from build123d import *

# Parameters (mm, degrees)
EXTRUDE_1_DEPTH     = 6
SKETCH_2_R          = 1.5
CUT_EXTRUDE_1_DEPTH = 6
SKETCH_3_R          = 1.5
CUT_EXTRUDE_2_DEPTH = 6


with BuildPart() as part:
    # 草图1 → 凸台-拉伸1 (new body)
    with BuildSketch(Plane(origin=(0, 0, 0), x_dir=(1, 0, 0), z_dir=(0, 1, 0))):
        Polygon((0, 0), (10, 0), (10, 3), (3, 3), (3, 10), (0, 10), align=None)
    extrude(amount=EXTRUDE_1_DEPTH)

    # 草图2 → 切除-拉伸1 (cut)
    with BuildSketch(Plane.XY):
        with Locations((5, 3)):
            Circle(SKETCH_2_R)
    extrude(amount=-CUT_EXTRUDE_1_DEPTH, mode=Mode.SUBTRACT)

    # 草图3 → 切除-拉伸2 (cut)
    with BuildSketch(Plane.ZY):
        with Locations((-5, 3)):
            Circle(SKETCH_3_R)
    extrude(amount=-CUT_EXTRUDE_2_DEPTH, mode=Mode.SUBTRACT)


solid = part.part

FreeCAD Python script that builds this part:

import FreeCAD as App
import Part
import Sketcher
from FreeCAD import Vector


def add_polygon(sketch, points):
    """Adds a closed chain of lines whose ends are joined by coincident constraints."""
    first, n = sketch.GeometryCount, len(points)
    for a, b in zip(points, points[1:] + points[:1]):
        sketch.addGeometry(Part.LineSegment(App.Vector(*a, 0), App.Vector(*b, 0)), False)
    for i in range(n):
        sketch.addConstraint(Sketcher.Constraint("Coincident", first + i, 2, first + (i + 1) % n, 1))

doc = App.newDocument("Part")
body = doc.addObject("PartDesign::Body", "Body")

# Sketch on XZ plane
sketch1 = body.newObject("Sketcher::SketchObject", "Sketch")
sketch1.AttachmentSupport = (doc.getObject("XZ_Plane"), [""])
sketch1.MapMode = "FlatFace"
add_polygon(sketch1, [(0, 0), (10, 0), (10, -3), (3, -3), (3, -10), (0, -10)])  # lines 0-5
sketch1.addConstraint(Sketcher.Constraint("Horizontal", 0))
sketch1.addConstraint(Sketcher.Constraint("Vertical", 1))
sketch1.addConstraint(Sketcher.Constraint("Horizontal", 2))
sketch1.addConstraint(Sketcher.Constraint("Vertical", 3))
sketch1.addConstraint(Sketcher.Constraint("Horizontal", 4))
sketch1.addConstraint(Sketcher.Constraint("Vertical", 5))
sketch1.addConstraint(Sketcher.Constraint("Coincident", 5, 2, -1, 1))
sketch1.addConstraint(Sketcher.Constraint("Equal", 4, 1))
sketch1.addConstraint(Sketcher.Constraint("Equal", 2, 3))
sketch1.addConstraint(Sketcher.Constraint("DistanceX", 0, 1, 0, 2, 10.0))
sketch1.addConstraint(Sketcher.Constraint("DistanceX", 2, 2, 2, 1, 7.0))
pad1 = body.newObject("PartDesign::Pad", "Pad")
pad1.Profile = sketch1
pad1.Length = 6
pad1.Reversed = True

# Sketch on XY plane
sketch2 = body.newObject("Sketcher::SketchObject", "Sketch001")
sketch2.AttachmentSupport = (doc.getObject("XY_Plane"), [""])
sketch2.MapMode = "FlatFace"
sketch2.addGeometry(Part.Circle(Vector(5, 3, 0), Vector(0, 0, 1), 1.5), False)
sketch2.addConstraint(Sketcher.Constraint("Diameter", 0, 3.0))
sketch2.addConstraint(Sketcher.Constraint("DistanceX", -1, 1, 0, 3, 5.0))
sketch2.addConstraint(Sketcher.Constraint("DistanceY", -1, 1, 0, 3, 3.0))
pocket1 = body.newObject("PartDesign::Pocket", "Pocket")
pocket1.Profile = sketch2
pocket1.Length = 6

# Sketch on YZ plane
sketch3 = body.newObject("Sketcher::SketchObject", "Sketch002")
sketch3.AttachmentSupport = (doc.getObject("YZ_Plane"), [""])
sketch3.MapMode = "FlatFace"
sketch3.addGeometry(Part.Circle(Vector(3, -5, 0), Vector(0, 0, 1), 1.5), False)
sketch3.addConstraint(Sketcher.Constraint("Diameter", 0, 3.0))
sketch3.addConstraint(Sketcher.Constraint("DistanceX", -1, 1, 0, 3, 3.0))
sketch3.addConstraint(Sketcher.Constraint("DistanceY", 0, 3, -1, 1, 5.0))
pocket2 = body.newObject("PartDesign::Pocket", "Pocket001")
pocket2.Profile = sketch3
pocket2.Length = 6
pocket2.Reversed = True

doc.recompute()
